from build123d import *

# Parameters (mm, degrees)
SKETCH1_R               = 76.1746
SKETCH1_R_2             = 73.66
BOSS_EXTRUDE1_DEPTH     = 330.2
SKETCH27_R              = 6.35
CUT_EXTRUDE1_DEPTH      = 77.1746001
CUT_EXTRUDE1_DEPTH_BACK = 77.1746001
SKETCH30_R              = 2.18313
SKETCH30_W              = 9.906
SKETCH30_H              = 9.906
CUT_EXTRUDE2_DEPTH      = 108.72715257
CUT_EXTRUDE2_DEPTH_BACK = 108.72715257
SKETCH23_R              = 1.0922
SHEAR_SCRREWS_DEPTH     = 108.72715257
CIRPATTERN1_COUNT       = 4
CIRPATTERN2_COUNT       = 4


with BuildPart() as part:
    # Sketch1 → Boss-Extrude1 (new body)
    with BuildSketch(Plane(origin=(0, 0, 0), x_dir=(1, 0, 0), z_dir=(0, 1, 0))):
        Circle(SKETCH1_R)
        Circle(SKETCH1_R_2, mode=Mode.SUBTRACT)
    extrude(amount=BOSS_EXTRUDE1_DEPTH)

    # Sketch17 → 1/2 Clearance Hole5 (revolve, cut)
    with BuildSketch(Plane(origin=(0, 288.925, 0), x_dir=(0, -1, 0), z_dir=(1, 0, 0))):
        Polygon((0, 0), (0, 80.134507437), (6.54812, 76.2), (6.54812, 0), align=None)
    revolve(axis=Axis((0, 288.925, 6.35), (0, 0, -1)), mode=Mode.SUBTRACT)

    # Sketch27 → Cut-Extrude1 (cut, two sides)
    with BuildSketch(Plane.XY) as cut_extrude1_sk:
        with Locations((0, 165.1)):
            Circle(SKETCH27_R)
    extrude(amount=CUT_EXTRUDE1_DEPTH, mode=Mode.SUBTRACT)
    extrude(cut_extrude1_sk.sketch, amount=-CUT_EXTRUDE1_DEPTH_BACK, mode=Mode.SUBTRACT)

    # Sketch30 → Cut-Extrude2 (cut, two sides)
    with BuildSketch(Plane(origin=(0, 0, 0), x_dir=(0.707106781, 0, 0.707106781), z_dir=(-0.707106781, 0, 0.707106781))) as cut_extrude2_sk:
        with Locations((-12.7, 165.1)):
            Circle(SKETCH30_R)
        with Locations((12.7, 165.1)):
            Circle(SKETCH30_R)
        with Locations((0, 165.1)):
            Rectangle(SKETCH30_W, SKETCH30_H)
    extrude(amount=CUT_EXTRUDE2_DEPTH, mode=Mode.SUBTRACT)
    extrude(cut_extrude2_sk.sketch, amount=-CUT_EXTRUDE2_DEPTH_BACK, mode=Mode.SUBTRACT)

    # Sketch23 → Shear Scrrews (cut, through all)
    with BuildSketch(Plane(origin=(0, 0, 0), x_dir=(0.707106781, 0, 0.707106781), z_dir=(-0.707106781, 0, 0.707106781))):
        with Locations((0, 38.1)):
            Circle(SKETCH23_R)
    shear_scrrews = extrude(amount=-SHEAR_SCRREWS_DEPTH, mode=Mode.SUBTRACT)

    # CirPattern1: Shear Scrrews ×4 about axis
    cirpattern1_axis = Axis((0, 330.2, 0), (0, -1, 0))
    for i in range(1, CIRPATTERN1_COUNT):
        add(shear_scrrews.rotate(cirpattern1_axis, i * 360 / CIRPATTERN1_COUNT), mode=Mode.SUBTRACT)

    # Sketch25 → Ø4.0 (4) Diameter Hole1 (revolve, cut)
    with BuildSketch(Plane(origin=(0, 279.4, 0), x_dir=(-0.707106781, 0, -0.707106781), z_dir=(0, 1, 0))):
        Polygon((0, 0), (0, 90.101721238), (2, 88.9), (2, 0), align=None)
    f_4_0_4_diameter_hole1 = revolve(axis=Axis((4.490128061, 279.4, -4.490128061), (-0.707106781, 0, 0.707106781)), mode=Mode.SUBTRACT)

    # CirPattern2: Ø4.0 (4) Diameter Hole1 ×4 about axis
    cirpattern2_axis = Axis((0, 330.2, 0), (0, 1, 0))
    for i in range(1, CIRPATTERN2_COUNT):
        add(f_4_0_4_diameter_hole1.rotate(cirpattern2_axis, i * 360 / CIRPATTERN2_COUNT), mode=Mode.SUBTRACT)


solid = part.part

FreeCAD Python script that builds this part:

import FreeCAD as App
import Part
import Sketcher
Q = App.Units.Quantity


def add_polygon(sketch, points):
    """Adds a closed chain of lines whose ends are joined by coincident constraints."""
    first, n = sketch.GeometryCount, len(points)
    for a, b in zip(points, points[1:] + points[:1]):
        sketch.addGeometry(Part.LineSegment(App.Vector(*a, 0), App.Vector(*b, 0)), False)
    for i in range(n):
        sketch.addConstraint(Sketcher.Constraint("Coincident", first + i, 2, first + (i + 1) % n, 1))

doc = App.newDocument("Part")
body = doc.addObject("PartDesign::Body", "Body")

# Sketch on XZ plane
sketch1 = body.newObject("Sketcher::SketchObject", "Sketch")
sketch1.AttachmentSupport = (doc.getObject("XZ_Plane"), [""])
sketch1.MapMode = "FlatFace"
sketch1.addGeometry(Part.Circle(App.Vector(0, 0, 0), App.Vector(0, 0, 1), 76.1746), False)
sketch1.addGeometry(Part.Circle(App.Vector(0, 0, 0), App.Vector(0, 0, 1), 73.66), False)
sketch1.addConstraint(Sketcher.Constraint("Coincident", 0, 3, -1, 1))
sketch1.addConstraint(Sketcher.Constraint("Coincident", 1, 3, -1, 1))
sketch1.addConstraint(Sketcher.Constraint("Diameter", 1, Q("5.8 in")))
sketch1.addConstraint(Sketcher.Constraint("Diameter", 0, Q("5.998 in")))
pad1 = body.newObject("PartDesign::Pad", "Pad")
pad1.Profile = sketch1
pad1.Length = Q("13 in")
pad1.Reversed = True

# Sketch on YZ plane
sketch2 = body.newObject("Sketcher::SketchObject", "Sketch001")
sketch2.AttachmentSupport = (doc.getObject("YZ_Plane"), [""])
sketch2.MapMode = "FlatFace"
add_polygon(sketch2, [(288.925, -80.134507), (288.925, 0), (282.37688, 0), (282.37688, -76.2)])  # lines 0-3
sketch2.addGeometry(Part.LineSegment(App.Vector(288.925, 0, 0), App.Vector(288.925, -80.134507, 0)), True)  # axis
sketch2.addConstraint(Sketcher.Constraint("Vertical", 0))
sketch2.addConstraint(Sketcher.Constraint("Horizontal", 1))
sketch2.addConstraint(Sketcher.Constraint("Vertical", 2))
sketch2.addConstraint(Sketcher.Constraint("Vertical", 4))
sketch2.addConstraint(Sketcher.Constraint("Coincident", 4, 1, 0, 2))
sketch2.addConstraint(Sketcher.Constraint("PointOnObject", 0, 2, -1))
sketch2.addConstraint(Sketcher.Constraint("Equal", 0, 4))
sketch2.addConstraint(Sketcher.Constraint("DistanceY", 2, 2, 2, 1, Q("3 in")))
sketch2.addConstraint(Sketcher.Constraint("Angle", 3, Q("-31 deg")))
sketch2.addConstraint(Sketcher.Constraint("DistanceX", 1, 2, 1, 1, Q("0.2578 in")))
sketch2.addConstraint(Sketcher.Constraint("DistanceX", -1, 1, 0, 2, Q("11.375 in")))
groove = body.newObject("PartDesign::Groove", "Groove")
groove.Profile = sketch2
groove.ReferenceAxis = (sketch2, ["Axis0"])
groove.Angle = 360

# Sketch on XY plane
sketch3 = body.newObject("Sketcher::SketchObject", "Sketch002")
sketch3.AttachmentSupport = (doc.getObject("XY_Plane"), [""])
sketch3.MapMode = "FlatFace"
sketch3.addGeometry(Part.Circle(App.Vector(0, 165.1, 0), App.Vector(0, 0, 1), 6.35), False)
sketch3.addConstraint(Sketcher.Constraint("PointOnObject", 0, 3, -2))
sketch3.addConstraint(Sketcher.Constraint("Diameter", 0, Q("0.5 in")))
sketch3.addConstraint(Sketcher.Constraint("DistanceY", -1, 1, 0, 3, Q("6.5 in")))
pocket1 = body.newObject("PartDesign::Pocket", "Pocket")
pocket1.Profile = sketch3
pocket1.Type = "ThroughAll"
pocket1.Midplane = True

# Sketch on an angled plane
sketch4 = body.newObject("Sketcher::SketchObject", "Sketch003")
sketch4.Placement = App.Placement(App.Vector(0, 0, 0), App.Rotation(App.Vector(0.707106781, 0, 0.707106781), App.Vector(0, 0.999999999, 0), App.Vector(-0.707106781, 0, 0.707106781), "ZXY"))
sketch4.addGeometry(Part.Circle(App.Vector(-12.7, 165.1, 0), App.Vector(0, 0, 1), 2.18313), False)  # 0
sketch4.addGeometry(Part.Circle(App.Vector(12.7, 165.1, 0), App.Vector(0, 0, 1), 2.18313), False)  # 1
add_polygon(sketch4, [(-4.953, 170.053), (-4.953, 160.147), (4.953, 160.147), (4.953, 170.053)])  # lines 2-5
sketch4.addConstraint(Sketcher.Constraint("Vertical", 2))
sketch4.addConstraint(Sketcher.Constraint("Horizontal", 3))
sketch4.addConstraint(Sketcher.Constraint("Vertical", 4))
sketch4.addConstraint(Sketcher.Constraint("Horizontal", 5))
sketch4.addConstraint(Sketcher.Constraint("Equal", 0, 1))
sketch4.addConstraint(Sketcher.Constraint("Symmetric", 0, 3, 1, 3, -2))
sketch4.addConstraint(Sketcher.Constraint("Equal", 5, 2))
sketch4.addConstraint(Sketcher.Constraint("DistanceX", 0, 3, 1, 3, Q("1 in")))
sketch4.addConstraint(Sketcher.Constraint("Diameter", 0, Q("0.1719 in")))
sketch4.addConstraint(Sketcher.Constraint("DistanceX", 3, 1, 3, 2, Q("0.39 in")))
sketch4.addConstraint(Sketcher.Constraint("DistanceY", -1, 1, 0, 3, Q("6.5 in")))
sketch4.addConstraint(Sketcher.Constraint("DistanceX", 2, 2, -1, 1, Q("0.195 in")))
sketch4.addConstraint(Sketcher.Constraint("DistanceY", -1, 1, 2, 2, Q("6.305 in")))
pocket2 = body.newObject("PartDesign::Pocket", "Pocket001")
pocket2.Profile = sketch4
pocket2.Type = "ThroughAll"
pocket2.Midplane = True

# Sketch on an angled plane
sketch5 = body.newObject("Sketcher::SketchObject", "Sketch004")
sketch5.Placement = App.Placement(App.Vector(0, 0, 0), App.Rotation(App.Vector(0.707106781, 0, 0.707106781), App.Vector(0, 0.999999999, 0), App.Vector(-0.707106781, 0, 0.707106781), "ZXY"))
sketch5.addGeometry(Part.Circle(App.Vector(0, 38.1, 0), App.Vector(0, 0, 1), 1.0922), False)
sketch5.addConstraint(Sketcher.Constraint("PointOnObject", 0, 3, -2))
sketch5.addConstraint(Sketcher.Constraint("Diameter", 0, Q("0.086 in")))
sketch5.addConstraint(Sketcher.Constraint("DistanceY", -1, 1, 0, 3, Q("1.5 in")))
pocket3 = body.newObject("PartDesign::Pocket", "Pocket002")
pocket3.Profile = sketch5
pocket3.Type = "ThroughAll"
doc.recompute()

polarpattern = body.newObject("PartDesign::PolarPattern", "PolarPattern")
polarpattern.Originals = [pocket3]
polarpattern.Axis = (doc.getObject("Y_Axis"), [""])
polarpattern.Angle = 360
polarpattern.Occurrences = 4
body.Tip = polarpattern

# Sketch on XZ plane
sketch6 = body.newObject("Sketcher::SketchObject", "Sketch005")
sketch6.AttachmentSupport = (doc.getObject("XZ_Plane"), [""])
sketch6.MapMode = "FlatFace"
sketch6.AttachmentOffset = App.Placement(App.Vector(0, 0, -11 * 25.4), App.Rotation())
add_polygon(sketch6, [(-63.711538, 63.711538), (0, 0), (-1.414214, -1.414214), (-64.276006, 61.447579)])  # lines 0-3
sketch6.addGeometry(Part.LineSegment(App.Vector(0, 0, 0), App.Vector(-63.711538, 63.711538, 0)), True)  # axis
sketch6.addConstraint(Sketcher.Constraint("Coincident", 0, 2, -1, 1))
sketch6.addConstraint(Sketcher.Constraint("Coincident", 4, 1, -1, 1))
sketch6.addConstraint(Sketcher.Constraint("Coincident", 4, 2, 3, 2))
sketch6.addConstraint(Sketcher.Constraint("Perpendicular", 0, 1))
sketch6.addConstraint(Sketcher.Constraint("Perpendicular", 1, 2))
sketch6.addConstraint(Sketcher.Constraint("Angle", 0, Q("-45 deg")))
sketch6.addConstraint(Sketcher.Constraint("Angle", 3, Q("76 deg")))
sketch6.addConstraint(Sketcher.Constraint("Distance", 2, Q("3.5 in")))
sketch6.addConstraint(Sketcher.Constraint("Distance", 1, 2.0))
groove2 = body.newObject("PartDesign::Groove", "Groove001")
groove2.Profile = sketch6
groove2.ReferenceAxis = (sketch6, ["Axis0"])
groove2.Angle = 360
doc.recompute()

polarpattern2 = body.newObject("PartDesign::PolarPattern", "PolarPattern001")
polarpattern2.Originals = [groove2]
polarpattern2.Axis = (doc.getObject("Y_Axis"), [""])
polarpattern2.Angle = 360
polarpattern2.Occurrences = 4
body.Tip = polarpattern2

doc.recompute()
